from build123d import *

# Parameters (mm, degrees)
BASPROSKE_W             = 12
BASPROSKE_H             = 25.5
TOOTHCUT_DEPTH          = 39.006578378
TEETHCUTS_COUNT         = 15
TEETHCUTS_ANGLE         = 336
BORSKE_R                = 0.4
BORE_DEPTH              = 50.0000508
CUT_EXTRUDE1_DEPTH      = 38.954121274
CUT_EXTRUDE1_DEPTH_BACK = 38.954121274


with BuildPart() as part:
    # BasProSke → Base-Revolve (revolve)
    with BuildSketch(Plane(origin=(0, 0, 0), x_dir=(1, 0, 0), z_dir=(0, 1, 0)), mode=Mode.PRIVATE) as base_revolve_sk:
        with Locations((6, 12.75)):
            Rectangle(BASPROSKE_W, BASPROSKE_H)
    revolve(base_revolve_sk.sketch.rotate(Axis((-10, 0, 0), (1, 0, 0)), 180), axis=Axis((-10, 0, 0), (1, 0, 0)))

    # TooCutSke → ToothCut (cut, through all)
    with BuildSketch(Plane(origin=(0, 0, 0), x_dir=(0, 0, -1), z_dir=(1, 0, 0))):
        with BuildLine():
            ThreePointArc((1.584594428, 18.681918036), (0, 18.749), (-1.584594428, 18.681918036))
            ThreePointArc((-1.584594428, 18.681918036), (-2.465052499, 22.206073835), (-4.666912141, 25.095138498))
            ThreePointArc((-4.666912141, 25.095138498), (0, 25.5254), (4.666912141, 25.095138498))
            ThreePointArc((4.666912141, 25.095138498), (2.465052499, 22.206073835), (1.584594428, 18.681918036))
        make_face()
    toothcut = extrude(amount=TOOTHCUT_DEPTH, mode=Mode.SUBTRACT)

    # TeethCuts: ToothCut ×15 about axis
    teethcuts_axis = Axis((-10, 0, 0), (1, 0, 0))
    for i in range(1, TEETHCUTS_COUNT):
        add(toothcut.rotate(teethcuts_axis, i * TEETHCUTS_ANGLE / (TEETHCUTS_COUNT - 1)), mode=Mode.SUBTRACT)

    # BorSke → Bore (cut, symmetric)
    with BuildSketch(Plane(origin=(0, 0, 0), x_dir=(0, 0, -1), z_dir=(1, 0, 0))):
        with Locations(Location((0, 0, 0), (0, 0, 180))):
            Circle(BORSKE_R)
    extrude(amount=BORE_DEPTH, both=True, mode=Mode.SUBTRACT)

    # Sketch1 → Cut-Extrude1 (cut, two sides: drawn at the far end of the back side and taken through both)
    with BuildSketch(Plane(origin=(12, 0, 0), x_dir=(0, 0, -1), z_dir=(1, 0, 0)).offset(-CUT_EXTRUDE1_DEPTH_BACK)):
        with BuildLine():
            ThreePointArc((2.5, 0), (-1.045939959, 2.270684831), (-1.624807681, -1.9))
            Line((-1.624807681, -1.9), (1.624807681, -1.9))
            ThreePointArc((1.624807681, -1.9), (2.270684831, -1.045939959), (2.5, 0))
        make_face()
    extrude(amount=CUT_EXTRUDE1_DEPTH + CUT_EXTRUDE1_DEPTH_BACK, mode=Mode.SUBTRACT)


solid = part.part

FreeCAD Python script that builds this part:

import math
import FreeCAD as App
import Part
import Sketcher

V = App.Vector
Q = App.Units.Quantity


def add_polygon(sketch, points):
    """Adds a closed chain of lines whose ends are joined by coincident constraints."""
    first, n = sketch.GeometryCount, len(points)
    for a, b in zip(points, points[1:] + points[:1]):
        sketch.addGeometry(Part.LineSegment(App.Vector(*a, 0), App.Vector(*b, 0)), False)
    for i in range(n):
        sketch.addConstraint(Sketcher.Constraint("Coincident", first + i, 2, first + (i + 1) % n, 1))

doc = App.newDocument("Part")
body = doc.addObject("PartDesign::Body", "Body")

# Sketch on XZ plane
sketch1 = body.newObject("Sketcher::SketchObject", "Sketch")
sketch1.AttachmentSupport = (doc.getObject("XZ_Plane"), [""])
sketch1.MapMode = "FlatFace"
add_polygon(sketch1, [(0, -25.5), (0, 0), (12, 0), (12, -25.5)])  # lines 0-3
sketch1.addConstraint(Sketcher.Constraint("Vertical", 0))
sketch1.addConstraint(Sketcher.Constraint("Horizontal", 1))
sketch1.addConstraint(Sketcher.Constraint("Vertical", 2))
sketch1.addConstraint(Sketcher.Constraint("Horizontal", 3))
sketch1.addConstraint(Sketcher.Constraint("Coincident", 0, 2, -1, 1))
sketch1.addConstraint(Sketcher.Constraint("DistanceX", 1, 1, 1, 2, Q("12 mm")))
sketch1.addConstraint(Sketcher.Constraint("DistanceY", 0, 1, 0, 2, Q("25.5 mm")))
revolution = body.newObject("PartDesign::Revolution", "Revolution")
revolution.Profile = sketch1
revolution.ReferenceAxis = (sketch1, ["H_Axis"])
revolution.Angle = 360

# Sketch on YZ plane
sketch2 = body.newObject("Sketcher::SketchObject", "Sketch001")
sketch2.AttachmentSupport = (doc.getObject("YZ_Plane"), [""])
sketch2.MapMode = "FlatFace"
sketch2.addGeometry(Part.ArcOfCircle(Part.Circle(V(0, 0, 0), V(0, 0, 1), 18.749), math.radians(-4.848206), math.radians(4.848206)), False)
sketch2.addGeometry(Part.ArcOfCircle(Part.Circle(V(18.307412, -10.576799, 0), V(0, 0, 1), 9), math.radians(41.045192), math.radians(87.61513)), False)
sketch2.addGeometry(Part.ArcOfCircle(Part.Circle(V(0, 0, 0), V(0, 0, 1), 25.5254), math.radians(-10.534879), math.radians(10.534879)), False)
sketch2.addGeometry(Part.ArcOfCircle(Part.Circle(V(18.307412, 10.576799, 0), V(0, 0, 1), 9), math.radians(-87.61513), math.radians(-41.045192)), False)
sketch2.addConstraint(Sketcher.Constraint("Coincident", 0, 1, 1, 2))
sketch2.addConstraint(Sketcher.Constraint("Coincident", 1, 1, 2, 1))
sketch2.addConstraint(Sketcher.Constraint("Coincident", 2, 2, 3, 2))
sketch2.addConstraint(Sketcher.Constraint("Coincident", 3, 1, 0, 2))
sketch2.addConstraint(Sketcher.Constraint("Coincident", 0, 3, -1, 1))
sketch2.addConstraint(Sketcher.Constraint("Coincident", 2, 3, -1, 1))
sketch2.addConstraint(Sketcher.Constraint("Equal", 1, 3))
sketch2.addConstraint(Sketcher.Constraint("Symmetric", 1, 3, 3, 3, -1))
sketch2.addConstraint(Sketcher.Constraint("Radius", 1, Q("9 mm")))
sketch2.addConstraint(Sketcher.Constraint("Radius", 0, Q("18.749 mm")))
sketch2.addConstraint(Sketcher.Constraint("Radius", 2, Q("25.5254 mm")))
sketch2.addConstraint(Sketcher.Constraint("DistanceY", 1, 3, -1, 1, Q("10.576799 mm")))
sketch2.addConstraint(Sketcher.Constraint("DistanceX", -1, 1, 1, 3, Q("18.307412 mm")))
pocket1 = body.newObject("PartDesign::Pocket", "Pocket")
pocket1.Profile = sketch2
pocket1.Type = "ThroughAll"
pocket1.Reversed = True
doc.recompute()

polarpattern = body.newObject("PartDesign::PolarPattern", "PolarPattern")
polarpattern.Originals = [pocket1]
polarpattern.Axis = (doc.getObject("X_Axis"), [""])
polarpattern.Angle = 360
polarpattern.Occurrences = 15
body.Tip = polarpattern

# Sketch on YZ plane
sketch3 = body.newObject("Sketcher::SketchObject", "Sketch002")
sketch3.AttachmentSupport = (doc.getObject("YZ_Plane"), [""])
sketch3.MapMode = "FlatFace"
sketch3.addGeometry(Part.Circle(V(0, 0, 0), V(0, 0, 1), 0.4), False)
sketch3.addConstraint(Sketcher.Constraint("Coincident", 0, 3, -1, 1))
sketch3.addConstraint(Sketcher.Constraint("Diameter", 0, Q("0.8 mm")))
pocket2 = body.newObject("PartDesign::Pocket", "Pocket001")
pocket2.Profile = sketch3
pocket2.Length = 100.000102
pocket2.Midplane = True

# Sketch on YZ plane
sketch4 = body.newObject("Sketcher::SketchObject", "Sketch003")
sketch4.AttachmentSupport = (doc.getObject("YZ_Plane"), [""])
sketch4.MapMode = "FlatFace"
sketch4.AttachmentOffset = App.Placement(V(0, 0, 12), App.Rotation())
sketch4.addGeometry(Part.ArcOfCircle(Part.Circle(V(0, 0, 0), V(0, 0, 1), 2.5), math.radians(-90), math.radians(139.464198)), False)
sketch4.addGeometry(Part.LineSegment(V(-1.9, 1.624808, 0), V(-1.9, -1.624808, 0)), False)
sketch4.addGeometry(Part.ArcOfCircle(Part.Circle(V(0, 0, 0), V(0, 0, 1), 2.5), math.radians(-139.464198), math.radians(-90)), False)
sketch4.addConstraint(Sketcher.Constraint("Coincident", 0, 2, 1, 1))
sketch4.addConstraint(Sketcher.Constraint("Coincident", 1, 2, 2, 1))
sketch4.addConstraint(Sketcher.Constraint("Tangent", 2, 2, 0, 1))
sketch4.addConstraint(Sketcher.Constraint("Vertical", 1))
sketch4.addConstraint(Sketcher.Constraint("Coincident", 0, 3, -1, 1))
sketch4.addConstraint(Sketcher.Constraint("Equal", 0, 2))
sketch4.addConstraint(Sketcher.Constraint("PointOnObject", 2, 2, -2))
sketch4.addConstraint(Sketcher.Constraint("Radius", 0, Q("2.5 mm")))
sketch4.addConstraint(Sketcher.Constraint("DistanceX", 0, 2, -1, 1, Q("1.9 mm")))
pocket3 = body.newObject("PartDesign::Pocket", "Pocket002")
pocket3.Profile = sketch4
pocket3.Type = "ThroughAll"
pocket3.Midplane = True

doc.recompute()
